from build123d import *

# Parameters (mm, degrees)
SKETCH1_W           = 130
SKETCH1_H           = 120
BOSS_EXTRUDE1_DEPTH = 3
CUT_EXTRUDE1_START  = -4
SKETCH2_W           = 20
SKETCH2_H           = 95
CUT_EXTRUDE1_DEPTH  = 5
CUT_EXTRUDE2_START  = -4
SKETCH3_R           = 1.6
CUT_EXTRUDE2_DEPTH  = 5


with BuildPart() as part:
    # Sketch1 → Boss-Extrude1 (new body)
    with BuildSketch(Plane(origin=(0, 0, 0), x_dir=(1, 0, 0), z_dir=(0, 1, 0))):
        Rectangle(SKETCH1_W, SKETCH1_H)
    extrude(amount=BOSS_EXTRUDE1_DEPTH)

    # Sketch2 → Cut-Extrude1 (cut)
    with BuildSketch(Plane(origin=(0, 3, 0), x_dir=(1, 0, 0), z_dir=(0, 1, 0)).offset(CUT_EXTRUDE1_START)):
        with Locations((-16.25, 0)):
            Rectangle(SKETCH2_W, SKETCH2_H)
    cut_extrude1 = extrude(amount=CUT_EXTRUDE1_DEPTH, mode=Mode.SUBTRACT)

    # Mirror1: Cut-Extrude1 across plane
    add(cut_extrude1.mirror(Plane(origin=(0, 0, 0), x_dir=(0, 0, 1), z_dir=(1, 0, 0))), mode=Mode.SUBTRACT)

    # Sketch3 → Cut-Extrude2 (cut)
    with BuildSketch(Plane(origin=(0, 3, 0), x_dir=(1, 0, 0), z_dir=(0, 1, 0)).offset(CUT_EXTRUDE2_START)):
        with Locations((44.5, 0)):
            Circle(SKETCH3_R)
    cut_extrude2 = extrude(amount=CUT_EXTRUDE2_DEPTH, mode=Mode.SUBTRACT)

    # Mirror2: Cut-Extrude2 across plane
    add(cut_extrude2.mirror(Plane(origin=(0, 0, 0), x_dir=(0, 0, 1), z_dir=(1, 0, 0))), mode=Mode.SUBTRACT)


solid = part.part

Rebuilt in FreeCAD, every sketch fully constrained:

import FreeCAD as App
import Part
import Sketcher


def add_polygon(sketch, points):
    """Adds a closed chain of lines whose ends are joined by coincident constraints."""
    first, n = sketch.GeometryCount, len(points)
    for a, b in zip(points, points[1:] + points[:1]):
        sketch.addGeometry(Part.LineSegment(App.Vector(*a, 0), App.Vector(*b, 0)), False)
    for i in range(n):
        sketch.addConstraint(Sketcher.Constraint("Coincident", first + i, 2, first + (i + 1) % n, 1))

doc = App.newDocument("Part")
body = doc.addObject("PartDesign::Body", "Body")

# Sketch on XZ plane
sketch1 = body.newObject("Sketcher::SketchObject", "Sketch")
sketch1.AttachmentSupport = (doc.getObject("XZ_Plane"), [""])
sketch1.MapMode = "FlatFace"
add_polygon(sketch1, [(-65, -60), (-65, 60), (65, 60), (65, -60)])  # lines 0-3
sketch1.addConstraint([
    Sketcher.Constraint("Vertical", 0),
    Sketcher.Constraint("Horizontal", 1),
    Sketcher.Constraint("Vertical", 2),
    Sketcher.Constraint("Horizontal", 3),
    Sketcher.Constraint("Symmetric", 0, 2, 2, 2, -1, 1),
    Sketcher.Constraint("DistanceX", 1, 1, 1, 2, 130.0),
    Sketcher.Constraint("DistanceY", 0, 1, 0, 2, 120.0),
])
pad1 = body.newObject("PartDesign::Pad", "Pad")
pad1.Profile = sketch1
pad1.Length = 3
pad1.Reversed = True

# Sketch on XZ plane
sketch2 = body.newObject("Sketcher::SketchObject", "Sketch001")
sketch2.AttachmentSupport = (doc.getObject("XZ_Plane"), [""])
sketch2.MapMode = "FlatFace"
sketch2.AttachmentOffset = App.Placement(App.Vector(0, 0, 1), App.Rotation())
add_polygon(sketch2, [(-26.25, -47.5), (-26.25, 47.5), (-6.25, 47.5), (-6.25, -47.5)])  # lines 0-3
sketch2.addConstraint([
    Sketcher.Constraint("Vertical", 0),
    Sketcher.Constraint("Horizontal", 1),
    Sketcher.Constraint("Vertical", 2),
    Sketcher.Constraint("Horizontal", 3),
    Sketcher.Constraint("DistanceX", 1, 1, 1, 2, 20.0),
    Sketcher.Constraint("DistanceY", 0, 1, 0, 2, 95.0),
    Sketcher.Constraint("DistanceY", -1, 1, 0, 2, 47.5),
    Sketcher.Constraint("DistanceX", 0, 2, -1, 1, 26.25),
])
pocket1 = body.newObject("PartDesign::Pocket", "Pocket")
pocket1.Profile = sketch2
pocket1.Length = 5
doc.recompute()

mirrored = body.newObject("PartDesign::Mirrored", "Mirrored")
mirrored.Originals = [pocket1]
mirrored.MirrorPlane = (doc.getObject("YZ_Plane"), [""])
body.Tip = mirrored

# Sketch on XZ plane
sketch3 = body.newObject("Sketcher::SketchObject", "Sketch002")
sketch3.AttachmentSupport = (doc.getObject("XZ_Plane"), [""])
sketch3.MapMode = "FlatFace"
sketch3.AttachmentOffset = App.Placement(App.Vector(0, 0, 1), App.Rotation())
sketch3.addGeometry(Part.Circle(App.Vector(44.5, 0, 0), App.Vector(0, 0, 1), 1.6), False)
sketch3.addConstraint([
    Sketcher.Constraint("PointOnObject", 0, 3, -1),
    Sketcher.Constraint("Diameter", 0, 3.2),
    Sketcher.Constraint("DistanceX", -1, 1, 0, 3, 44.5),
])
pocket2 = body.newObject("PartDesign::Pocket", "Pocket001")
pocket2.Profile = sketch3
pocket2.Length = 5
doc.recompute()

mirrored2 = body.newObject("PartDesign::Mirrored", "Mirrored001")
mirrored2.Originals = [pocket2]
mirrored2.MirrorPlane = (doc.getObject("YZ_Plane"), [""])
body.Tip = mirrored2

doc.recompute()
